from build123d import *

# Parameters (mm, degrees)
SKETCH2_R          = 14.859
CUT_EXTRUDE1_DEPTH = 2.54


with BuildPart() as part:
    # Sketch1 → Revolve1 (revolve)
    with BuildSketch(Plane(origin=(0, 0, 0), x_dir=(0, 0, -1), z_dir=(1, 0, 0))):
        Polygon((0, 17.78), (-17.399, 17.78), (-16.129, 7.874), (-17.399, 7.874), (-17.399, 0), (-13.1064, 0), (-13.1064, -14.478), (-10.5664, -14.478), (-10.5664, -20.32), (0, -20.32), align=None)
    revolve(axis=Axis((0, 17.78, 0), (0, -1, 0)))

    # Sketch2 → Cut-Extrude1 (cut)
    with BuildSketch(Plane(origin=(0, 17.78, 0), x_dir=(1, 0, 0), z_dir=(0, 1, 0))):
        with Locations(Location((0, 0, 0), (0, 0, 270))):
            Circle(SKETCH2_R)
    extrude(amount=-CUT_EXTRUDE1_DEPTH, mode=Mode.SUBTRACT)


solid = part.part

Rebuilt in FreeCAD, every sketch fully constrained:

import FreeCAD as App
import Part
import Sketcher

V = App.Vector
Q = App.Units.Quantity

doc = App.newDocument("Part")
body = doc.addObject("PartDesign::Body", "Body")

# Sketch on YZ plane
sketch1 = doc.addObject("Sketcher::SketchObject", "Sketch")
body.addObject(sketch1)
sketch1.AttachmentSupport = (doc.YZ_Plane, [""])
sketch1.MapMode = "FlatFace"
sketch1.addGeometry([
    Part.LineSegment(V(17.8, 0, 0), V(17.8, 17.4, 0)),  # 0
    Part.LineSegment(V(17.8, 17.4, 0), V(7.9, 16.1, 0)),  # 1
    Part.LineSegment(V(7.9, 16.1, 0), V(7.9, 17.4, 0)),  # 2
    Part.LineSegment(V(7.9, 17.4, 0), V(0, 17.4, 0)),  # 3
    Part.LineSegment(V(0, 17.4, 0), V(0, 13.1, 0)),  # 4
    Part.LineSegment(V(0, 13.1, 0), V(-14.5, 13.1, 0)),  # 5
    Part.LineSegment(V(-14.5, 13.1, 0), V(-14.5, 10.6, 0)),  # 6
    Part.LineSegment(V(-14.5, 10.6, 0), V(-20.3, 10.6, 0)),  # 7
    Part.LineSegment(V(-20.3, 10.6, 0), V(-20.3, 0, 0)),  # 8
    Part.LineSegment(V(-20.3, 0, 0), V(17.8, 0, 0)),  # 9
], False)
sketch1.addConstraint([
    Sketcher.Constraint("Coincident", 0, 2, 1, 1),
    Sketcher.Constraint("Coincident", 1, 2, 2, 1),
    Sketcher.Constraint("Coincident", 2, 2, 3, 1),
    Sketcher.Constraint("Coincident", 3, 2, 4, 1),
    Sketcher.Constraint("Coincident", 4, 2, 5, 1),
    Sketcher.Constraint("Coincident", 5, 2, 6, 1),
    Sketcher.Constraint("Coincident", 6, 2, 7, 1),
    Sketcher.Constraint("Coincident", 7, 2, 8, 1),
    Sketcher.Constraint("Coincident", 8, 2, 9, 1),
    Sketcher.Constraint("Coincident", 9, 2, 0, 1),
    Sketcher.Constraint("Vertical", 0),
    Sketcher.Constraint("Vertical", 2),
    Sketcher.Constraint("Horizontal", 3),
    Sketcher.Constraint("Vertical", 4),
    Sketcher.Constraint("Horizontal", 5),
    Sketcher.Constraint("Vertical", 6),
    Sketcher.Constraint("Horizontal", 7),
    Sketcher.Constraint("Vertical", 8),
    Sketcher.Constraint("Horizontal", 9),
    Sketcher.Constraint("PointOnObject", 3, 2, -2),
    Sketcher.Constraint("PointOnObject", 8, 2, -1),
    Sketcher.Constraint("Horizontal", 0, 2, 2, 2),
    Sketcher.Constraint("DistanceX", 9, 1, 9, 2, Q("1.5 in")),
    Sketcher.Constraint("DistanceY", 6, 2, 6, 1, Q("0.1 in")),
    Sketcher.Constraint("DistanceX", 3, 2, 3, 1, Q("0.31 in")),
    Sketcher.Constraint("DistanceX", 5, 2, 5, 1, Q("0.57 in")),
    Sketcher.Constraint("DistanceX", 7, 2, 7, 1, Q("0.23 in")),
    Sketcher.Constraint("DistanceY", 2, 1, 2, 2, Q("0.05 in")),
    Sketcher.Constraint("DistanceY", 0, 1, 0, 2, Q("0.685 in")),
    Sketcher.Constraint("DistanceY", 4, 2, 4, 1, Q("0.169 in")),
])
revolution = doc.addObject("PartDesign::Revolution", "Revolution")
body.addObject(revolution)
revolution.Profile = sketch1
revolution.ReferenceAxis = (sketch1, ["H_Axis"])
revolution.Angle = 360

# Sketch on XZ plane
sketch2 = doc.addObject("Sketcher::SketchObject", "Sketch001")
body.addObject(sketch2)
sketch2.AttachmentSupport = (doc.XZ_Plane, [""])
sketch2.MapMode = "FlatFace"
sketch2.AttachmentOffset = App.Placement(V(0, 0, -0.7 * 25.4), App.Rotation())
sketch2.addGeometry(Part.Circle(V(0, 0, 0), V(0, 0, 1), 15), False)
sketch2.addConstraint([
    Sketcher.Constraint("Coincident", 0, 3, -1, 1),
    Sketcher.Constraint("Diameter", 0, Q("1.17 in")),
])
pocket1 = doc.addObject("PartDesign::Pocket", "Pocket")
body.addObject(pocket1)
pocket1.Profile = sketch2
pocket1.Length = Q("0.1 in")
pocket1.Reversed = True

doc.recompute()
